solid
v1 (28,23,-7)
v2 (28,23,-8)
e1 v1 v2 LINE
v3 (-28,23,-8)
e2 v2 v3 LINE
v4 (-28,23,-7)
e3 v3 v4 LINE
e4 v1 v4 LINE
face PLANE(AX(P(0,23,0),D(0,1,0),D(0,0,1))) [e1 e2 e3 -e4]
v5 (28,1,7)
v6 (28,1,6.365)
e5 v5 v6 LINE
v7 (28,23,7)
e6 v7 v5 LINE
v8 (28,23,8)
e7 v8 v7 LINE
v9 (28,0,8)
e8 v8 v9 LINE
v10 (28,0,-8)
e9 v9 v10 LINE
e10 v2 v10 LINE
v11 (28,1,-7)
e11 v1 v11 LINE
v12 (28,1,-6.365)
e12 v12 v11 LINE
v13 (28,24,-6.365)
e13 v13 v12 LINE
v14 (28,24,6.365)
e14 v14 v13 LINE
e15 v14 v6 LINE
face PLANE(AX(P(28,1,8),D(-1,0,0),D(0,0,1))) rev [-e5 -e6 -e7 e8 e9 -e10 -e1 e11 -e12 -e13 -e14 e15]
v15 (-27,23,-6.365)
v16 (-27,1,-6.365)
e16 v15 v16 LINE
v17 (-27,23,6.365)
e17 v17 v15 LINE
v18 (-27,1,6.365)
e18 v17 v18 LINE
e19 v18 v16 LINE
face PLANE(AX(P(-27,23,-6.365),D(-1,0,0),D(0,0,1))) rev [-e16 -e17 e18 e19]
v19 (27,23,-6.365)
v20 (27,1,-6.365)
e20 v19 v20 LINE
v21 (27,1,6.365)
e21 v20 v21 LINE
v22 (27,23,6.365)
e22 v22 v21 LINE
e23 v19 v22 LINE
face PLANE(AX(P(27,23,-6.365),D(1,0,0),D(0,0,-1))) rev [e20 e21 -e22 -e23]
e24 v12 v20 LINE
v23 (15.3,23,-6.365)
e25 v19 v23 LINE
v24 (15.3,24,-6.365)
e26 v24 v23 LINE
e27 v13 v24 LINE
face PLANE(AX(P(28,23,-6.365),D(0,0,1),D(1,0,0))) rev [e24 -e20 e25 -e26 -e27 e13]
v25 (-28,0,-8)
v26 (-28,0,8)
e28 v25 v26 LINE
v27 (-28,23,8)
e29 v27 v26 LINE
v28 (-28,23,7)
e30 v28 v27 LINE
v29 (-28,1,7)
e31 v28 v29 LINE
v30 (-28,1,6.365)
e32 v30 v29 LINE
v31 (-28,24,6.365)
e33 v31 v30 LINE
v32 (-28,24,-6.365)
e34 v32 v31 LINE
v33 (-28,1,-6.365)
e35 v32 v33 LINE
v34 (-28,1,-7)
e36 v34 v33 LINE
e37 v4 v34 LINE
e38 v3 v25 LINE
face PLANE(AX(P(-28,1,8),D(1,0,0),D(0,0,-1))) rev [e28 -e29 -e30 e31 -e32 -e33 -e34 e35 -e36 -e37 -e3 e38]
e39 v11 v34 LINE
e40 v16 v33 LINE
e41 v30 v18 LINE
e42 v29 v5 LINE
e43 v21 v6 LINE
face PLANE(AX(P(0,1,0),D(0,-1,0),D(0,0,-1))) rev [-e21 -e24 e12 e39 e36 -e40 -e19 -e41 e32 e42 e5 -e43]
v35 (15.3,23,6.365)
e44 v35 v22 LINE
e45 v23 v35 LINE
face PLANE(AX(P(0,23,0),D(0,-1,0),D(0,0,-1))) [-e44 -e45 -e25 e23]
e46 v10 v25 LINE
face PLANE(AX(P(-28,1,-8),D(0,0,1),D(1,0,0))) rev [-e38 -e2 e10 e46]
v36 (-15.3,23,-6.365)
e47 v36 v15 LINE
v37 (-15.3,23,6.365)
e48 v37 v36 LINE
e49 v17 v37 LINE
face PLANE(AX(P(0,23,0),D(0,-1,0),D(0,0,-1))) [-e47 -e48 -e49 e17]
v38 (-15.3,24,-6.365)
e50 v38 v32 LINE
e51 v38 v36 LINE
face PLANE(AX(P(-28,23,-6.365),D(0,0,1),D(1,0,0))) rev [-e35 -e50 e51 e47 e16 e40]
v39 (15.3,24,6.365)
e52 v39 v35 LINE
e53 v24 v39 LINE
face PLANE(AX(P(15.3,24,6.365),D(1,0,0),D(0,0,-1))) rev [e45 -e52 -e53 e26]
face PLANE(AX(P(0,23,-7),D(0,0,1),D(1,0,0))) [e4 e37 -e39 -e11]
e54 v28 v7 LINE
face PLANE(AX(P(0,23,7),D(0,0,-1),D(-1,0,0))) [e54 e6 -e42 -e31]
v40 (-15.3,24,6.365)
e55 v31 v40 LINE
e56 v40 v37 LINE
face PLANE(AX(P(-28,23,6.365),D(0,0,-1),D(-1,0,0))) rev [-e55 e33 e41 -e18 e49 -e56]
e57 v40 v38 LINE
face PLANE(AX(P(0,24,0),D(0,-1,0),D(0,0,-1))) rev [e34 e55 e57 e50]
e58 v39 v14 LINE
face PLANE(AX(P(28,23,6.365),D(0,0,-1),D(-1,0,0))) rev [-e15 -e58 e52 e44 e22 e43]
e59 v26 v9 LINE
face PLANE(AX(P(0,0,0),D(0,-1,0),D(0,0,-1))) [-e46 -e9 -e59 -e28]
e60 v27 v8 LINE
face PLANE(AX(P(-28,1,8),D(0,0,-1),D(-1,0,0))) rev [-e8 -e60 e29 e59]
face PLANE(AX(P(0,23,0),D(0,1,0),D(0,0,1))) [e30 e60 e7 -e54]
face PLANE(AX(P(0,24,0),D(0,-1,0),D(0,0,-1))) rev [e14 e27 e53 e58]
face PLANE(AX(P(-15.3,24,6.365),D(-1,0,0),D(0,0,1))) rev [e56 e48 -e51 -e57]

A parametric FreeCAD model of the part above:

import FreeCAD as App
import Part
import Sketcher

V = App.Vector


def add_polygon(sketch, points):
    """Adds a closed chain of lines whose ends are joined by coincident constraints."""
    first, n = sketch.GeometryCount, len(points)
    for a, b in zip(points, points[1:] + points[:1]):
        sketch.addGeometry(Part.LineSegment(App.Vector(*a, 0), App.Vector(*b, 0)), False)
    for i in range(n):
        sketch.addConstraint(Sketcher.Constraint("Coincident", first + i, 2, first + (i + 1) % n, 1))

doc = App.newDocument("Part")
params = doc.addObject("Spreadsheet::Sheet", "Params")
for row, (alias, value) in enumerate([
    ("sketch1_width", "56 mm"),
    ("sketch1_height", "16 mm"),
    ("pad1_length", "1 mm"),
    ("sketch2_width", "56 mm"),
    ("sketch2_height", "1 mm"),
    ("pad2_length", "22 mm"),
    ("sketch3_width", "1 mm"),
    ("sketch3_height", "12.73 mm"),
    ("pad3_length", "22 mm"),
    ("sketch4_width", "12.7 mm"),
    ("sketch4_height", "12.73 mm"),
    ("pad4_length", "1 mm"),
], start=1):
    params.set(f"A{row}", alias)
    params.set(f"B{row}", "=" + value)
    params.setAlias(f"B{row}", alias)

body = doc.addObject("PartDesign::Body", "Body")

sketch1 = doc.addObject("Sketcher::SketchObject", "Sketch")
body.addObject(sketch1)
sketch1.AttachmentSupport = (doc.XZ_Plane, [""])
sketch1.MapMode = "FlatFace"
add_polygon(sketch1, [(-28, -8), (-28, 8), (28, 8), (28, -8)])
sketch1.addConstraint([
    Sketcher.Constraint("Vertical", 0),
    Sketcher.Constraint("Horizontal", 1),
    Sketcher.Constraint("Vertical", 2),
    Sketcher.Constraint("Horizontal", 3),
    Sketcher.Constraint("Symmetric", 0, 2, 2, 2, -1, 1),
    Sketcher.Constraint("DistanceX", 1, 1, 1, 2, 56.0),
    Sketcher.Constraint("DistanceY", 0, 1, 0, 2, 16.0),
])
sketch1.setExpression("Constraints[9]", "Params.sketch1_width")
sketch1.setExpression("Constraints[10]", "Params.sketch1_height")
pad1 = doc.addObject("PartDesign::Pad", "Pad")
body.addObject(pad1)
pad1.Profile = sketch1
pad1.setExpression("Length", "Params.pad1_length")
pad1.Reversed = True

sketch2 = doc.addObject("Sketcher::SketchObject", "Sketch001")
body.addObject(sketch2)
sketch2.AttachmentSupport = (doc.XZ_Plane, [""])
sketch2.MapMode = "FlatFace"
sketch2.AttachmentOffset = App.Placement(V(0, 0, -1), App.Rotation())
add_polygon(sketch2, [(28, 7), (-28, 7), (-28, 8), (28, 8)])
add_polygon(sketch2, [(28, -7), (28, -8), (-28, -8), (-28, -7)])
sketch2.addConstraint([
    Sketcher.Constraint("Horizontal", 0),
    Sketcher.Constraint("Vertical", 1),
    Sketcher.Constraint("Horizontal", 2),
    Sketcher.Constraint("Vertical", 3),
    Sketcher.Constraint("Vertical", 4),
    Sketcher.Constraint("Horizontal", 5),
    Sketcher.Constraint("Vertical", 6),
    Sketcher.Constraint("Horizontal", 7),
    Sketcher.Constraint("Symmetric", 1, 2, 4, 2, -1, 1),
    Sketcher.Constraint("Symmetric", 3, 2, 6, 2, -1, 1),
    Sketcher.Constraint("Vertical", 3, 2, 4, 2),
    Sketcher.Constraint("DistanceX", 0, 2, 0, 1, 56.0),
    Sketcher.Constraint("DistanceY", 1, 1, 1, 2, 1.0),
    Sketcher.Constraint("DistanceY", -1, 1, 0, 2, 7.0),
])
sketch2.setExpression("Constraints[19]", "Params.sketch2_width")
sketch2.setExpression("Constraints[20]", "Params.sketch2_height")
pad2 = doc.addObject("PartDesign::Pad", "Pad001")
body.addObject(pad2)
pad2.Profile = sketch2
pad2.setExpression("Length", "Params.pad2_length")
pad2.Reversed = True

sketch3 = doc.addObject("Sketcher::SketchObject", "Sketch002")
body.addObject(sketch3)
sketch3.AttachmentSupport = (doc.XZ_Plane, [""])
sketch3.MapMode = "FlatFace"
sketch3.AttachmentOffset = App.Placement(V(0, 0, -1), App.Rotation())
add_polygon(sketch3, [(27, -6.365), (27, 6.365), (28, 6.365), (28, -6.365)])
add_polygon(sketch3, [(-28, -6.365), (-28, 6.365), (-27, 6.365), (-27, -6.365)])
sketch3.addConstraint([
    Sketcher.Constraint("Vertical", 0),
    Sketcher.Constraint("Horizontal", 1),
    Sketcher.Constraint("Vertical", 2),
    Sketcher.Constraint("Horizontal", 3),
    Sketcher.Constraint("Vertical", 4),
    Sketcher.Constraint("Horizontal", 5),
    Sketcher.Constraint("Vertical", 6),
    Sketcher.Constraint("Horizontal", 7),
    Sketcher.Constraint("Symmetric", 2, 2, 4, 2, -1, 1),
    Sketcher.Constraint("Symmetric", 0, 2, 6, 2, -1, 1),
    Sketcher.Constraint("Horizontal", 1, 2, 4, 2),
    Sketcher.Constraint("DistanceX", 1, 1, 1, 2, 1.0),
    Sketcher.Constraint("DistanceX", -1, 1, 0, 2, 27.0),
    Sketcher.Constraint("DistanceY", 0, 1, 0, 2, 12.73),
])
sketch3.setExpression("Constraints[19]", "Params.sketch3_width")
sketch3.setExpression("Constraints[21]", "Params.sketch3_height")
pad3 = doc.addObject("PartDesign::Pad", "Pad002")
body.addObject(pad3)
pad3.Profile = sketch3
pad3.setExpression("Length", "Params.pad3_length")
pad3.Reversed = True

sketch4 = doc.addObject("Sketcher::SketchObject", "Sketch003")
body.addObject(sketch4)
sketch4.AttachmentSupport = (doc.XZ_Plane, [""])
sketch4.MapMode = "FlatFace"
sketch4.AttachmentOffset = App.Placement(V(0, 0, -23), App.Rotation())
add_polygon(sketch4, [(-28, -6.365), (-28, 6.365), (-15.3, 6.365), (-15.3, -6.365)])
add_polygon(sketch4, [(15.3, -6.365), (15.3, 6.365), (28, 6.365), (28, -6.365)])
sketch4.addConstraint([
    Sketcher.Constraint("Vertical", 0),
    Sketcher.Constraint("Horizontal", 1),
    Sketcher.Constraint("Vertical", 2),
    Sketcher.Constraint("Horizontal", 3),
    Sketcher.Constraint("Vertical", 4),
    Sketcher.Constraint("Horizontal", 5),
    Sketcher.Constraint("Vertical", 6),
    Sketcher.Constraint("Horizontal", 7),
    Sketcher.Constraint("Symmetric", 2, 2, 4, 2, -1, 1),
    Sketcher.Constraint("Symmetric", 0, 2, 6, 2, -1, 1),
    Sketcher.Constraint("Horizontal", 1, 2, 4, 2),
    Sketcher.Constraint("DistanceX", 1, 1, 1, 2, 12.7),
    Sketcher.Constraint("DistanceX", 0, 2, -1, 1, 28.0),
    Sketcher.Constraint("DistanceY", 0, 1, 0, 2, 12.73),
])
sketch4.setExpression("Constraints[19]", "Params.sketch4_width")
sketch4.setExpression("Constraints[21]", "Params.sketch4_height")
pad4 = doc.addObject("PartDesign::Pad", "Pad003")
body.addObject(pad4)
pad4.Profile = sketch4
pad4.setExpression("Length", "Params.pad4_length")
pad4.Reversed = True

doc.recompute()
